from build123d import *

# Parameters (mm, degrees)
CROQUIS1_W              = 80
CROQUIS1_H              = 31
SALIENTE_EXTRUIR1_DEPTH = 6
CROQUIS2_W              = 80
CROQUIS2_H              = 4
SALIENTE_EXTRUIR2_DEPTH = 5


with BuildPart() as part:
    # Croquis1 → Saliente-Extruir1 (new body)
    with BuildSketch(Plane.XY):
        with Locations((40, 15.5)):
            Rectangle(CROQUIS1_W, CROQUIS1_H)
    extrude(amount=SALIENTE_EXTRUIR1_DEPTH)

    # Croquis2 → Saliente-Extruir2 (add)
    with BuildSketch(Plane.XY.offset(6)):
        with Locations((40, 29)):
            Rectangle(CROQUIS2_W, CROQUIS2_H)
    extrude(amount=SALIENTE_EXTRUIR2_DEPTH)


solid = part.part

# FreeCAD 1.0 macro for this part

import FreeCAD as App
import Part
import Sketcher
from FreeCAD import Vector
Q = App.Units.Quantity

doc = App.newDocument("Part")
body = doc.addObject("PartDesign::Body", "Body")

# Sketch on XY plane
sketch1 = body.newObject("Sketcher::SketchObject", "Sketch")
sketch1.AttachmentSupport = (doc.getObject("XY_Plane"), [""])
sketch1.MapMode = "FlatFace"
sketch1.addGeometry(Part.LineSegment(Vector(0, 31, 0), Vector(0, 0, 0)), False)
sketch1.addGeometry(Part.LineSegment(Vector(0, 0, 0), Vector(80, 0, 0)), False)
sketch1.addGeometry(Part.LineSegment(Vector(80, 0, 0), Vector(80, 31, 0)), False)
sketch1.addGeometry(Part.LineSegment(Vector(80, 31, 0), Vector(0, 31, 0)), False)
sketch1.addConstraint(Sketcher.Constraint("Coincident", 0, 2, 1, 1))
sketch1.addConstraint(Sketcher.Constraint("Coincident", 1, 2, 2, 1))
sketch1.addConstraint(Sketcher.Constraint("Coincident", 2, 2, 3, 1))
sketch1.addConstraint(Sketcher.Constraint("Coincident", 3, 2, 0, 1))
sketch1.addConstraint(Sketcher.Constraint("Vertical", 0))
sketch1.addConstraint(Sketcher.Constraint("Horizontal", 1))
sketch1.addConstraint(Sketcher.Constraint("Vertical", 2))
sketch1.addConstraint(Sketcher.Constraint("Horizontal", 3))
sketch1.addConstraint(Sketcher.Constraint("Coincident", 0, 2, -1, 1))
sketch1.addConstraint(Sketcher.Constraint("DistanceX", 1, 1, 1, 2, Q("80 mm")))
sketch1.addConstraint(Sketcher.Constraint("DistanceY", 0, 2, 0, 1, Q("31 mm")))
pad1 = body.newObject("PartDesign::Pad", "Pad")
pad1.Profile = sketch1
pad1.Length = 6

# Sketch on XY plane
sketch2 = body.newObject("Sketcher::SketchObject", "Sketch001")
sketch2.AttachmentSupport = (doc.getObject("XY_Plane"), [""])
sketch2.MapMode = "FlatFace"
sketch2.AttachmentOffset = App.Placement(Vector(0, 0, 6), App.Rotation())
sketch2.addGeometry(Part.LineSegment(Vector(0, 31, 0), Vector(0, 27, 0)), False)
sketch2.addGeometry(Part.LineSegment(Vector(0, 27, 0), Vector(80, 27, 0)), False)
sketch2.addGeometry(Part.LineSegment(Vector(80, 27, 0), Vector(80, 31, 0)), False)
sketch2.addGeometry(Part.LineSegment(Vector(80, 31, 0), Vector(0, 31, 0)), False)
sketch2.addConstraint(Sketcher.Constraint("Coincident", 0, 2, 1, 1))
sketch2.addConstraint(Sketcher.Constraint("Coincident", 1, 2, 2, 1))
sketch2.addConstraint(Sketcher.Constraint("Coincident", 2, 2, 3, 1))
sketch2.addConstraint(Sketcher.Constraint("Coincident", 3, 2, 0, 1))
sketch2.addConstraint(Sketcher.Constraint("Vertical", 0))
sketch2.addConstraint(Sketcher.Constraint("Horizontal", 1))
sketch2.addConstraint(Sketcher.Constraint("Vertical", 2))
sketch2.addConstraint(Sketcher.Constraint("Horizontal", 3))
sketch2.addConstraint(Sketcher.Constraint("PointOnObject", 0, 2, -2))
sketch2.addConstraint(Sketcher.Constraint("DistanceX", 1, 1, 1, 2, Q("80 mm")))
sketch2.addConstraint(Sketcher.Constraint("DistanceY", 0, 2, 0, 1, Q("4 mm")))
sketch2.addConstraint(Sketcher.Constraint("DistanceY", -1, 1, 0, 2, Q("27 mm")))
pad2 = body.newObject("PartDesign::Pad", "Pad001")
pad2.Profile = sketch2
pad2.Length = 5

doc.recompute()
